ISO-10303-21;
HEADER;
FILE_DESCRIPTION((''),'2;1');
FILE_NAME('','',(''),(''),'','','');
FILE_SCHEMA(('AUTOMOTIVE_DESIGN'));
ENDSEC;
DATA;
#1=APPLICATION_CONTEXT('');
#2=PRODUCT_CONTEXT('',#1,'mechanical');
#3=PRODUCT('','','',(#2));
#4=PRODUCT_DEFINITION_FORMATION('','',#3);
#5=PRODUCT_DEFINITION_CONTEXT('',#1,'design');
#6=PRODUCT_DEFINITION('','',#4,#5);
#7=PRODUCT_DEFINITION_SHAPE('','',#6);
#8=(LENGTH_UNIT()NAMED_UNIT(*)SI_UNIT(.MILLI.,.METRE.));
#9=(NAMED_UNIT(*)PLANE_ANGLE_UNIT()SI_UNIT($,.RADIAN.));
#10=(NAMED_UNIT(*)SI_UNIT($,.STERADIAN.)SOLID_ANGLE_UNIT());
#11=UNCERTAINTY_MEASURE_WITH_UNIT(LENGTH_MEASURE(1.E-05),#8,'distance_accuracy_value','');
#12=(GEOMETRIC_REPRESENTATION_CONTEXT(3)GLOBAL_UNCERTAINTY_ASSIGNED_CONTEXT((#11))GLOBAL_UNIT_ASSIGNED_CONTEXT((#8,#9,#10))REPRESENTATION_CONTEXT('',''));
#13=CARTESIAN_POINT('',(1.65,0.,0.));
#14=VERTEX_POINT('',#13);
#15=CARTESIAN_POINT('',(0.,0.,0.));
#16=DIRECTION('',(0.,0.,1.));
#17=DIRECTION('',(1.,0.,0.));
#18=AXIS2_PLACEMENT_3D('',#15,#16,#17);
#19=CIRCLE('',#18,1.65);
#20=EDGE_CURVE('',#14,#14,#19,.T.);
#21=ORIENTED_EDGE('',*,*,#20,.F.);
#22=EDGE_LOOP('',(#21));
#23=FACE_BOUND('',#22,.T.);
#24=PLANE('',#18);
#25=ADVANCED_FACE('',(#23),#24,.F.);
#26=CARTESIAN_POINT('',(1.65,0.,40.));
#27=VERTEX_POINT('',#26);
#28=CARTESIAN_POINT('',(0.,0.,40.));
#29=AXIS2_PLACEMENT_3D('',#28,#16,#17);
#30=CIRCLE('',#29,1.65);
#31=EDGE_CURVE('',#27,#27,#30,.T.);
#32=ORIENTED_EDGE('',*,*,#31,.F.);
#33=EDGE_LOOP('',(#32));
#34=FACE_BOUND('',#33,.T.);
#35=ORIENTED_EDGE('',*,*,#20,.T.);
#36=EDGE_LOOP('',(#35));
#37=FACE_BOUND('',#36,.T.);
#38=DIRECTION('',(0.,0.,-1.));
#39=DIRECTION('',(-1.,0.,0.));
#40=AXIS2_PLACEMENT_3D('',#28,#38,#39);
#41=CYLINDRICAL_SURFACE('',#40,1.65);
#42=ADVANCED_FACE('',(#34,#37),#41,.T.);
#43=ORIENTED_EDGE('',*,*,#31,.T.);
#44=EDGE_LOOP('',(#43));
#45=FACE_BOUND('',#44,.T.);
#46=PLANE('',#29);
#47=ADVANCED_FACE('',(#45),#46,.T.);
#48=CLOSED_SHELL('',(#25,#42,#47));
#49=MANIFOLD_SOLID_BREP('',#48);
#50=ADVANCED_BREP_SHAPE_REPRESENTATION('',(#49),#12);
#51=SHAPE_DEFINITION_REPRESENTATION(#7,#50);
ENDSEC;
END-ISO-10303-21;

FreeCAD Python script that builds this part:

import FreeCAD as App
import Part
import Sketcher
from FreeCAD import Vector
Q = App.Units.Quantity

doc = App.newDocument("Part")
body = doc.addObject("PartDesign::Body", "Body")

# Sketch on XY plane
sketch1 = body.newObject("Sketcher::SketchObject", "Sketch")
sketch1.AttachmentSupport = (doc.getObject("XY_Plane"), [""])
sketch1.MapMode = "FlatFace"
sketch1.addGeometry(Part.Circle(Vector(0, 0, 0), Vector(0, 0, 1), 1.6), False)
sketch1.addConstraint([
    Sketcher.Constraint("Coincident", 0, 3, -1, 1),
    Sketcher.Constraint("Diameter", 0, Q("3.3 mm")),
])
pad1 = body.newObject("PartDesign::Pad", "Pad")
pad1.Profile = sketch1
pad1.Length = 40

doc.recompute()
